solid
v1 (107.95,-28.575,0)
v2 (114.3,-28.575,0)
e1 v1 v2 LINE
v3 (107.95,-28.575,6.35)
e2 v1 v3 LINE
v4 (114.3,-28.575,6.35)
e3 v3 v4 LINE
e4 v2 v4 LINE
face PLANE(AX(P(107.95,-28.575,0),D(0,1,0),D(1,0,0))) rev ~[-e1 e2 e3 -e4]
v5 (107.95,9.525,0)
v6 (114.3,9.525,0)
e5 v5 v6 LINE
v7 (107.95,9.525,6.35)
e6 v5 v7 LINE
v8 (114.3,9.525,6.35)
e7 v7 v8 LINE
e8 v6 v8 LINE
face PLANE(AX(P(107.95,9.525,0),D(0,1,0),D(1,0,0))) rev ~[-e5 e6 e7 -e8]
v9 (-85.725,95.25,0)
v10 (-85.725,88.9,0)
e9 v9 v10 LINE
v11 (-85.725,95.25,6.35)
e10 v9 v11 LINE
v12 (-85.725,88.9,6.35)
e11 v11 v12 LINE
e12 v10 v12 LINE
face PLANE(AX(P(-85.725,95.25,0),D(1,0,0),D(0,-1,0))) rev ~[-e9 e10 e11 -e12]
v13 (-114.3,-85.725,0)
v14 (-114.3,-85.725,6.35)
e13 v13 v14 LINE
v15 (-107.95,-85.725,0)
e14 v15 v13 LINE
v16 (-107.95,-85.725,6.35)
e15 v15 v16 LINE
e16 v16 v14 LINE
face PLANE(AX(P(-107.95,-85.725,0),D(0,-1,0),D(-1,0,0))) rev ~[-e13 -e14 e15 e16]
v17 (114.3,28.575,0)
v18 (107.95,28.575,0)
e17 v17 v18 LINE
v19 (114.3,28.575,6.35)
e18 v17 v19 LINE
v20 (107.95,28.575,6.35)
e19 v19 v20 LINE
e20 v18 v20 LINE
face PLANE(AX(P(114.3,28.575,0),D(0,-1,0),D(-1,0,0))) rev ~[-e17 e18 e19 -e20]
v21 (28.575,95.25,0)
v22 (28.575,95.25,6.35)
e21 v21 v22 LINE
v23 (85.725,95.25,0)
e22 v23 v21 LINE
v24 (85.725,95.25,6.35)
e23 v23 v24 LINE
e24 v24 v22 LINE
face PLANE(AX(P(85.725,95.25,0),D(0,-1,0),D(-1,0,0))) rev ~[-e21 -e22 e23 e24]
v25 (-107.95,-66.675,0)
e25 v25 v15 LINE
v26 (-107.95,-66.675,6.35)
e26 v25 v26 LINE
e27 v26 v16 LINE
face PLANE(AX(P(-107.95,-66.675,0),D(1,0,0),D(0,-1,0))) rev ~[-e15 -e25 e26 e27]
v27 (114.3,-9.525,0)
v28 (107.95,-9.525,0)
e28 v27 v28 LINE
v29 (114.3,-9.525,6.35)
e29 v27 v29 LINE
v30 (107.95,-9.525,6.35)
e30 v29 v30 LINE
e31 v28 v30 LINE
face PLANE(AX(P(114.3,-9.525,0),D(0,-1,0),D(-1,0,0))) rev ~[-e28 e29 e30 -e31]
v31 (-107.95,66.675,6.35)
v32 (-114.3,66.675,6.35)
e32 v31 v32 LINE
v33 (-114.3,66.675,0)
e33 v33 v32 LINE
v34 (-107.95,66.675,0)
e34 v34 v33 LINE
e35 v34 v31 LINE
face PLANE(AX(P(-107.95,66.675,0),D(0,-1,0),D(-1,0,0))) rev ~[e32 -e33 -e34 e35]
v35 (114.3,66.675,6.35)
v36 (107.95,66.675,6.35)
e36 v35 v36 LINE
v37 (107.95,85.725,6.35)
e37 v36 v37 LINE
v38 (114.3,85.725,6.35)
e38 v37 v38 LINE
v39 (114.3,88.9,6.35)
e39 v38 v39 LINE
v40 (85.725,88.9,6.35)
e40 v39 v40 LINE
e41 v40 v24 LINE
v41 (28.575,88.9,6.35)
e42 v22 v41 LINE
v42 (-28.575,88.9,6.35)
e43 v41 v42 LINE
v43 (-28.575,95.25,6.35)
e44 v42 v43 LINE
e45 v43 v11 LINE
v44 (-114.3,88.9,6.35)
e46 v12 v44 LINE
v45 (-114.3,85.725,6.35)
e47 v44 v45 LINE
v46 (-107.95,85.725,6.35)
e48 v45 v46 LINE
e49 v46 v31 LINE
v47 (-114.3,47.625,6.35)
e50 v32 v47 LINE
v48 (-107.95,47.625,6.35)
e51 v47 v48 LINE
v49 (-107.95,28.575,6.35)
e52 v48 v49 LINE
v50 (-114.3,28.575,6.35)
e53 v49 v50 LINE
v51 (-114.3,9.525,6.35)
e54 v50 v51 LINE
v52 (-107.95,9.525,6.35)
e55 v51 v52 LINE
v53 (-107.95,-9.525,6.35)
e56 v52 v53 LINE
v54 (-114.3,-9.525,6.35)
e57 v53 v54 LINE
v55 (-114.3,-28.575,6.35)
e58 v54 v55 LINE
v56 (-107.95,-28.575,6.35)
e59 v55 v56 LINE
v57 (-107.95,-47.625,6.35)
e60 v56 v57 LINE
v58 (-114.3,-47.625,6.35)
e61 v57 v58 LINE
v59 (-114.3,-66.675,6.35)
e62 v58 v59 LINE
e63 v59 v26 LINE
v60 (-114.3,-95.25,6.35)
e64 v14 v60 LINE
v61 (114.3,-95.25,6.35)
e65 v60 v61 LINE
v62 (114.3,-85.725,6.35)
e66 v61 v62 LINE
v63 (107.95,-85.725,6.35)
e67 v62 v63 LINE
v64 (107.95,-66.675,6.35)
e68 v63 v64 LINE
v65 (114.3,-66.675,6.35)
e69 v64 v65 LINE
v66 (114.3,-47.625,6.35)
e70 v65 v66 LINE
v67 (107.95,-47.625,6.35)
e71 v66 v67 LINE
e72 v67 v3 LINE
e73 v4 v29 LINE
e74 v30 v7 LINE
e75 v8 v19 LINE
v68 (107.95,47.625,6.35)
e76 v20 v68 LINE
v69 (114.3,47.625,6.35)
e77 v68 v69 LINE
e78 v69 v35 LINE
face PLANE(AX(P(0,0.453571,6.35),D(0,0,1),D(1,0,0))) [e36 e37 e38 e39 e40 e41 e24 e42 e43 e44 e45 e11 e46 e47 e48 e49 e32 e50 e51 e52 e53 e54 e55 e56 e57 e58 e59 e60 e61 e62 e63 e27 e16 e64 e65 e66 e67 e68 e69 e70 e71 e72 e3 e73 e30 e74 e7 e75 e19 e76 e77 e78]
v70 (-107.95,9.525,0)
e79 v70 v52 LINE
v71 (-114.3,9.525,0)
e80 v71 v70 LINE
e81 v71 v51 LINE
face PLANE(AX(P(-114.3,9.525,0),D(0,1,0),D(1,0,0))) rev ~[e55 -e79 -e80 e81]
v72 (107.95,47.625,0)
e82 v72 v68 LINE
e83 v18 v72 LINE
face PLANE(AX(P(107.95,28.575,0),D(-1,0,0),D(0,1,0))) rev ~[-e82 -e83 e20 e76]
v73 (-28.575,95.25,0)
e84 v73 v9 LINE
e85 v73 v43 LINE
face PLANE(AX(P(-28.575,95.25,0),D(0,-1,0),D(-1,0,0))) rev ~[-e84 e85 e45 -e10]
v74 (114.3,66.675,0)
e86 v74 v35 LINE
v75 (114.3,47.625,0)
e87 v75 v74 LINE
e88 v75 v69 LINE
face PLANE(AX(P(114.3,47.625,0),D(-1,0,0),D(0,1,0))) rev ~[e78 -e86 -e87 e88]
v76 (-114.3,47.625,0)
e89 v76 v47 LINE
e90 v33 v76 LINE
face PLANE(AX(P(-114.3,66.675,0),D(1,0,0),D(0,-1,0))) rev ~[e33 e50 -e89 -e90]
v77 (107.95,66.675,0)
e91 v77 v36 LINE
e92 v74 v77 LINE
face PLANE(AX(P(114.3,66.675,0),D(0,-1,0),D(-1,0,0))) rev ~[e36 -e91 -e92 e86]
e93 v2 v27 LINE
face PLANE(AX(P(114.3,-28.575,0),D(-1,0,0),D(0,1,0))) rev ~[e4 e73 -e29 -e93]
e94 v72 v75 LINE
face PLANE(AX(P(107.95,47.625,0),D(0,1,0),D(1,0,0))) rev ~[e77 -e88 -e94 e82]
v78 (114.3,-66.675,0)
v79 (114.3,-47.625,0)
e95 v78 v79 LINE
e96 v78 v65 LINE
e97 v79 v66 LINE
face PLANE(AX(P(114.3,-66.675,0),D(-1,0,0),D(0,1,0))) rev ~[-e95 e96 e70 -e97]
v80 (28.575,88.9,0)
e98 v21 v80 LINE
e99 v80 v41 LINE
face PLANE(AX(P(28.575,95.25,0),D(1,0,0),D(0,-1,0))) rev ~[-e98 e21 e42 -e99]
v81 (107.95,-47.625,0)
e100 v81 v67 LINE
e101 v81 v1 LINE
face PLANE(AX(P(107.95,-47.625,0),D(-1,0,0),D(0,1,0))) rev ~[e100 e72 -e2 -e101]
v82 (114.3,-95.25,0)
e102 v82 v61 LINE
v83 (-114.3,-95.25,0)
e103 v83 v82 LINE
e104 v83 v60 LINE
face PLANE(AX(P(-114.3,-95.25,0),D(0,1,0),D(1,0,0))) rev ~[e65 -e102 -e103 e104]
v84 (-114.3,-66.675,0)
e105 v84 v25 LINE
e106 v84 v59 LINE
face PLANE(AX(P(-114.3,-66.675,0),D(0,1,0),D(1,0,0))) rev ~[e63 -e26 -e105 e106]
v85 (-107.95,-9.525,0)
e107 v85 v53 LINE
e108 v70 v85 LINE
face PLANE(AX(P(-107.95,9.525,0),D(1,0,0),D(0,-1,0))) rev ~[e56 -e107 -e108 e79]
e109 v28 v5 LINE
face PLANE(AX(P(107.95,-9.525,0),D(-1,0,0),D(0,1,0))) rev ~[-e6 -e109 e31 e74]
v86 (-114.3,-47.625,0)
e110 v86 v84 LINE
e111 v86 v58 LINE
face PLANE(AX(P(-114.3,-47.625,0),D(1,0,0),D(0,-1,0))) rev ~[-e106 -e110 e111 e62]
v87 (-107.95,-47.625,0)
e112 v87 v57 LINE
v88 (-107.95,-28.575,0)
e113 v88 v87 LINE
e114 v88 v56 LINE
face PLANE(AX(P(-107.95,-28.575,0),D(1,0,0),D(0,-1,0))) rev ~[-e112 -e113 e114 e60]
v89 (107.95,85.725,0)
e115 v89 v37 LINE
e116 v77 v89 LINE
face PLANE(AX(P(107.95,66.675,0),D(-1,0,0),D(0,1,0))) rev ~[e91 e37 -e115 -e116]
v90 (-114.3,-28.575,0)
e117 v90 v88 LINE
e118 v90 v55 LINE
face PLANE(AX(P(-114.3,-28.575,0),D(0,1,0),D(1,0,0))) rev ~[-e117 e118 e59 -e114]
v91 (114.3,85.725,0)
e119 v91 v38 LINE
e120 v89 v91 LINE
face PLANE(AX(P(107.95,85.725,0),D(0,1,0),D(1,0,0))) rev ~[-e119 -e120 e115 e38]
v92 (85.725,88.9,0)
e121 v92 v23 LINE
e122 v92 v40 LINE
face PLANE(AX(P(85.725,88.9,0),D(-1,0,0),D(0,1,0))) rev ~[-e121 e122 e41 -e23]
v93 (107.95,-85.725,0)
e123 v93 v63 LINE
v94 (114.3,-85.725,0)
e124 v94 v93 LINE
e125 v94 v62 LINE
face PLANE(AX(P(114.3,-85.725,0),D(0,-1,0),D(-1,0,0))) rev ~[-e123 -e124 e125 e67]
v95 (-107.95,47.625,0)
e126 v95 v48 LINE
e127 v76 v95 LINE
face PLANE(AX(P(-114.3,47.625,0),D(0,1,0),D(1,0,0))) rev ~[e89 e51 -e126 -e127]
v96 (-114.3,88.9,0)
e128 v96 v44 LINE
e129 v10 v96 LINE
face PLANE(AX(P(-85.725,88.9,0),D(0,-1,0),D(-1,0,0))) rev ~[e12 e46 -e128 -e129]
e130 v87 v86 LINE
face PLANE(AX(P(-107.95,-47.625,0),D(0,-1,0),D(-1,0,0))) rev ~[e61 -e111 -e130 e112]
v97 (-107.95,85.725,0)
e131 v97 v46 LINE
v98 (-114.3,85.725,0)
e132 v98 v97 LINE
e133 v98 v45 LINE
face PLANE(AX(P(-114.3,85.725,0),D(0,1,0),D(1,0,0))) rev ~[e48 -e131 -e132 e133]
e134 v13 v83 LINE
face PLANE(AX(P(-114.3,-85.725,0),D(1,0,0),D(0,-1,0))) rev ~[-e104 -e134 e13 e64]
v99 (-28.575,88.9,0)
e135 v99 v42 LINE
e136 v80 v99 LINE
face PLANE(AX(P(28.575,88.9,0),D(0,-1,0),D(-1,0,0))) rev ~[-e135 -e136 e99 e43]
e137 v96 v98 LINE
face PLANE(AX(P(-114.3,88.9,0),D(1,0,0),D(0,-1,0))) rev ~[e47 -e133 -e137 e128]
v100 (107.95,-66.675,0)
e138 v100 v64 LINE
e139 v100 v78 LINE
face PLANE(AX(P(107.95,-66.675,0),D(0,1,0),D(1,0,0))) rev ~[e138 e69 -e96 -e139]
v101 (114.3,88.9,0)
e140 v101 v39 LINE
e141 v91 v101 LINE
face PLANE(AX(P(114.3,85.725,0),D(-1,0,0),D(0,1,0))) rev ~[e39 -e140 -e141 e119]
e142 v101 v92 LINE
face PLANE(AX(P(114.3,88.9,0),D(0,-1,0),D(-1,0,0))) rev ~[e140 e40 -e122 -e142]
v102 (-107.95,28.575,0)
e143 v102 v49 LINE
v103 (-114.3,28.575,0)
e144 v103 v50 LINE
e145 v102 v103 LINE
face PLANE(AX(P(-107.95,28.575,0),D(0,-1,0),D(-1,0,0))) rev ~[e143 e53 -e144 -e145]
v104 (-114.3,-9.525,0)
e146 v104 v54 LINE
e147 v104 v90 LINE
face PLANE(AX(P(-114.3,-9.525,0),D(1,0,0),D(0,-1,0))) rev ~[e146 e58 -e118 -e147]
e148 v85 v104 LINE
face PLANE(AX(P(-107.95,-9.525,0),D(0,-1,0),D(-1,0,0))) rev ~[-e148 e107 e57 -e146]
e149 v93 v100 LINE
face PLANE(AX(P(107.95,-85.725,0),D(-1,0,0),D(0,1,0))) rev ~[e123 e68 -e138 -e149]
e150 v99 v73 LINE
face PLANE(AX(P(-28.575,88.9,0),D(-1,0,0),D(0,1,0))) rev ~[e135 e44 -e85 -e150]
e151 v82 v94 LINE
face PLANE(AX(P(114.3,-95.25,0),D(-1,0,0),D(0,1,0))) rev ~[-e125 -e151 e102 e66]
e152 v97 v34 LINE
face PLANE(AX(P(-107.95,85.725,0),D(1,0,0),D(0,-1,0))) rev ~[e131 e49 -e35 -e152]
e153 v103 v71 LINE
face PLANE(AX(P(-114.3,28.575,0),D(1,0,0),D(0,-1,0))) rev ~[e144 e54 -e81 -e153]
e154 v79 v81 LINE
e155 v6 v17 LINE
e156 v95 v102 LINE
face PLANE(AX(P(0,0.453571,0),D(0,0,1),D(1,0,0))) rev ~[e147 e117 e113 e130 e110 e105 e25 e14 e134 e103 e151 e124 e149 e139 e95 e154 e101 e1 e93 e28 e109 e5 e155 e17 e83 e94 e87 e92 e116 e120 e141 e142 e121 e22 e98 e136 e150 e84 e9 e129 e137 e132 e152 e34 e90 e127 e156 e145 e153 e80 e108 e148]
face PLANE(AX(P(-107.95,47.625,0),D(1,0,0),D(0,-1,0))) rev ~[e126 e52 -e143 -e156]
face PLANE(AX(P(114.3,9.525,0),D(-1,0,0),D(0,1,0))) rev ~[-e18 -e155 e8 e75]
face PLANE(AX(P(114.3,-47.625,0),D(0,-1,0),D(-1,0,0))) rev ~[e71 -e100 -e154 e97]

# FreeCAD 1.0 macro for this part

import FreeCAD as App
import Part
import Sketcher

V = App.Vector
Q = App.Units.Quantity

doc = App.newDocument("Part")
params = doc.addObject("Spreadsheet::Sheet", "Params")
for row, (alias, value) in enumerate([
    ("sketch1_width", "9 in"),
    ("sketch1_width2", "2.25 in"),
    ("sketch1_width3", "0.25 in"),
    ("sketch1_height", "0.75 in"),
    ("pad1_length", "0.25 in"),
], start=1):
    params.set(f"A{row}", alias)
    params.set(f"B{row}", "=" + value)
    params.setAlias(f"B{row}", alias)

body = doc.addObject("PartDesign::Body", "Body")

sketch1 = body.newObject("Sketcher::SketchObject", "Sketch")
sketch1.AttachmentSupport = (doc.getObject("XY_Plane"), [""])
sketch1.MapMode = "FlatFace"
sketch1.addGeometry([
    Part.LineSegment(V(85.7, 95.2, 0), V(28.6, 95.2, 0)),
    Part.LineSegment(V(28.6, 95.2, 0), V(28.6, 88.9, 0)),
    Part.LineSegment(V(28.6, 88.9, 0), V(-28.6, 88.9, 0)),
    Part.LineSegment(V(-28.6, 88.9, 0), V(-28.6, 95.2, 0)),
    Part.LineSegment(V(-28.6, 95.2, 0), V(-85.7, 95.2, 0)),
    Part.LineSegment(V(-85.7, 95.2, 0), V(-85.7, 88.9, 0)),
    Part.LineSegment(V(-85.7, 88.9, 0), V(-114.3, 88.9, 0)),
    Part.LineSegment(V(-114.3, 88.9, 0), V(-114.3, 85.7, 0)),
    Part.LineSegment(V(-114.3, 85.7, 0), V(-108, 85.7, 0)),
    Part.LineSegment(V(-108, 85.7, 0), V(-108, 66.7, 0)),
    Part.LineSegment(V(-108, 66.7, 0), V(-114.3, 66.7, 0)),
    Part.LineSegment(V(-114.3, 66.7, 0), V(-114.3, 47.6, 0)),
    Part.LineSegment(V(-114.3, 47.6, 0), V(-108, 47.6, 0)),
    Part.LineSegment(V(-108, 47.6, 0), V(-108, 28.6, 0)),
    Part.LineSegment(V(-108, 28.6, 0), V(-114.3, 28.6, 0)),
    Part.LineSegment(V(-114.3, 28.6, 0), V(-114.3, 9.5, 0)),
    Part.LineSegment(V(-114.3, 9.5, 0), V(-108, 9.5, 0)),
    Part.LineSegment(V(-108, 9.5, 0), V(-108, -9.5, 0)),
    Part.LineSegment(V(-108, -9.5, 0), V(-114.3, -9.5, 0)),
    Part.LineSegment(V(-114.3, -9.5, 0), V(-114.3, -28.6, 0)),
    Part.LineSegment(V(-114.3, -28.6, 0), V(-108, -28.6, 0)),
    Part.LineSegment(V(-108, -28.6, 0), V(-108, -47.6, 0)),
    Part.LineSegment(V(-108, -47.6, 0), V(-114.3, -47.6, 0)),
    Part.LineSegment(V(-114.3, -47.6, 0), V(-114.3, -66.7, 0)),
    Part.LineSegment(V(-114.3, -66.7, 0), V(-108, -66.7, 0)),
    Part.LineSegment(V(-108, -66.7, 0), V(-108, -85.7, 0)),
    Part.LineSegment(V(-108, -85.7, 0), V(-114.3, -85.7, 0)),
    Part.LineSegment(V(-114.3, -85.7, 0), V(-114.3, -95.2, 0)),
    Part.LineSegment(V(-114.3, -95.2, 0), V(114.3, -95.2, 0)),
    Part.LineSegment(V(114.3, -95.2, 0), V(114.3, -85.7, 0)),
    Part.LineSegment(V(114.3, -85.7, 0), V(108, -85.7, 0)),
    Part.LineSegment(V(108, -85.7, 0), V(108, -66.7, 0)),
    Part.LineSegment(V(108, -66.7, 0), V(114.3, -66.7, 0)),
    Part.LineSegment(V(114.3, -66.7, 0), V(114.3, -47.6, 0)),
    Part.LineSegment(V(114.3, -47.6, 0), V(108, -47.6, 0)),
    Part.LineSegment(V(108, -47.6, 0), V(108, -28.6, 0)),
    Part.LineSegment(V(108, -28.6, 0), V(114.3, -28.6, 0)),
    Part.LineSegment(V(114.3, -28.6, 0), V(114.3, -9.5, 0)),
    Part.LineSegment(V(114.3, -9.5, 0), V(108, -9.5, 0)),
    Part.LineSegment(V(108, -9.5, 0), V(108, 9.5, 0)),
    Part.LineSegment(V(108, 9.5, 0), V(114.3, 9.5, 0)),
    Part.LineSegment(V(114.3, 9.5, 0), V(114.3, 28.6, 0)),
    Part.LineSegment(V(114.3, 28.6, 0), V(108, 28.6, 0)),
    Part.LineSegment(V(108, 28.6, 0), V(108, 47.6, 0)),
    Part.LineSegment(V(108, 47.6, 0), V(114.3, 47.6, 0)),
    Part.LineSegment(V(114.3, 47.6, 0), V(114.3, 66.7, 0)),
    Part.LineSegment(V(114.3, 66.7, 0), V(108, 66.7, 0)),
    Part.LineSegment(V(108, 66.7, 0), V(108, 85.7, 0)),
    Part.LineSegment(V(108, 85.7, 0), V(114.3, 85.7, 0)),
    Part.LineSegment(V(114.3, 85.7, 0), V(114.3, 88.9, 0)),
    Part.LineSegment(V(114.3, 88.9, 0), V(85.7, 88.9, 0)),
    Part.LineSegment(V(85.7, 88.9, 0), V(85.7, 95.2, 0)),
], False)
sketch1.addConstraint([
    Sketcher.Constraint("Coincident", 0, 2, 1, 1),
    Sketcher.Constraint("Coincident", 1, 2, 2, 1),
    Sketcher.Constraint("Coincident", 2, 2, 3, 1),
    Sketcher.Constraint("Coincident", 3, 2, 4, 1),
    Sketcher.Constraint("Coincident", 4, 2, 5, 1),
    Sketcher.Constraint("Coincident", 5, 2, 6, 1),
    Sketcher.Constraint("Coincident", 6, 2, 7, 1),
    Sketcher.Constraint("Coincident", 7, 2, 8, 1),
    Sketcher.Constraint("Coincident", 8, 2, 9, 1),
    Sketcher.Constraint("Coincident", 9, 2, 10, 1),
    Sketcher.Constraint("Coincident", 10, 2, 11, 1),
    Sketcher.Constraint("Coincident", 11, 2, 12, 1),
    Sketcher.Constraint("Coincident", 12, 2, 13, 1),
    Sketcher.Constraint("Coincident", 13, 2, 14, 1),
    Sketcher.Constraint("Coincident", 14, 2, 15, 1),
    Sketcher.Constraint("Coincident", 15, 2, 16, 1),
    Sketcher.Constraint("Coincident", 16, 2, 17, 1),
    Sketcher.Constraint("Coincident", 17, 2, 18, 1),
    Sketcher.Constraint("Coincident", 18, 2, 19, 1),
    Sketcher.Constraint("Coincident", 19, 2, 20, 1),
    Sketcher.Constraint("Coincident", 20, 2, 21, 1),
    Sketcher.Constraint("Coincident", 21, 2, 22, 1),
    Sketcher.Constraint("Coincident", 22, 2, 23, 1),
    Sketcher.Constraint("Coincident", 23, 2, 24, 1),
    Sketcher.Constraint("Coincident", 24, 2, 25, 1),
    Sketcher.Constraint("Coincident", 25, 2, 26, 1),
    Sketcher.Constraint("Coincident", 26, 2, 27, 1),
    Sketcher.Constraint("Coincident", 27, 2, 28, 1),
    Sketcher.Constraint("Coincident", 28, 2, 29, 1),
    Sketcher.Constraint("Coincident", 29, 2, 30, 1),
    Sketcher.Constraint("Coincident", 30, 2, 31, 1),
    Sketcher.Constraint("Coincident", 31, 2, 32, 1),
    Sketcher.Constraint("Coincident", 32, 2, 33, 1),
    Sketcher.Constraint("Coincident", 33, 2, 34, 1),
    Sketcher.Constraint("Coincident", 34, 2, 35, 1),
    Sketcher.Constraint("Coincident", 35, 2, 36, 1),
    Sketcher.Constraint("Coincident", 36, 2, 37, 1),
    Sketcher.Constraint("Coincident", 37, 2, 38, 1),
    Sketcher.Constraint("Coincident", 38, 2, 39, 1),
    Sketcher.Constraint("Coincident", 39, 2, 40, 1),
    Sketcher.Constraint("Coincident", 40, 2, 41, 1),
    Sketcher.Constraint("Coincident", 41, 2, 42, 1),
    Sketcher.Constraint("Coincident", 42, 2, 43, 1),
    Sketcher.Constraint("Coincident", 43, 2, 44, 1),
    Sketcher.Constraint("Coincident", 44, 2, 45, 1),
    Sketcher.Constraint("Coincident", 45, 2, 46, 1),
    Sketcher.Constraint("Coincident", 46, 2, 47, 1),
    Sketcher.Constraint("Coincident", 47, 2, 48, 1),
    Sketcher.Constraint("Coincident", 48, 2, 49, 1),
    Sketcher.Constraint("Coincident", 49, 2, 50, 1),
    Sketcher.Constraint("Coincident", 50, 2, 51, 1),
    Sketcher.Constraint("Coincident", 51, 2, 0, 1),
    Sketcher.Constraint("Horizontal", 0),
    Sketcher.Constraint("Vertical", 1),
    Sketcher.Constraint("Horizontal", 2),
    Sketcher.Constraint("Vertical", 3),
    Sketcher.Constraint("Horizontal", 4),
    Sketcher.Constraint("Vertical", 5),
    Sketcher.Constraint("Horizontal", 6),
    Sketcher.Constraint("Vertical", 7),
    Sketcher.Constraint("Horizontal", 8),
    Sketcher.Constraint("Vertical", 9),
    Sketcher.Constraint("Horizontal", 10),
    Sketcher.Constraint("Vertical", 11),
    Sketcher.Constraint("Horizontal", 12),
    Sketcher.Constraint("Vertical", 13),
    Sketcher.Constraint("Horizontal", 14),
    Sketcher.Constraint("Vertical", 15),
    Sketcher.Constraint("Horizontal", 16),
    Sketcher.Constraint("Vertical", 17),
    Sketcher.Constraint("Horizontal", 18),
    Sketcher.Constraint("Vertical", 19),
    Sketcher.Constraint("Horizontal", 20),
    Sketcher.Constraint("Vertical", 21),
    Sketcher.Constraint("Horizontal", 22),
    Sketcher.Constraint("Vertical", 23),
    Sketcher.Constraint("Horizontal", 24),
    Sketcher.Constraint("Vertical", 25),
    Sketcher.Constraint("Horizontal", 26),
    Sketcher.Constraint("Vertical", 27),
    Sketcher.Constraint("Horizontal", 28),
    Sketcher.Constraint("Vertical", 29),
    Sketcher.Constraint("Horizontal", 30),
    Sketcher.Constraint("Vertical", 31),
    Sketcher.Constraint("Horizontal", 32),
    Sketcher.Constraint("Vertical", 33),
    Sketcher.Constraint("Horizontal", 34),
    Sketcher.Constraint("Vertical", 35),
    Sketcher.Constraint("Horizontal", 36),
    Sketcher.Constraint("Vertical", 37),
    Sketcher.Constraint("Horizontal", 38),
    Sketcher.Constraint("Vertical", 39),
    Sketcher.Constraint("Horizontal", 40),
    Sketcher.Constraint("Vertical", 41),
    Sketcher.Constraint("Horizontal", 42),
    Sketcher.Constraint("Vertical", 43),
    Sketcher.Constraint("Horizontal", 44),
    Sketcher.Constraint("Vertical", 45),
    Sketcher.Constraint("Horizontal", 46),
    Sketcher.Constraint("Vertical", 47),
    Sketcher.Constraint("Horizontal", 48),
    Sketcher.Constraint("Vertical", 49),
    Sketcher.Constraint("Horizontal", 50),
    Sketcher.Constraint("Vertical", 51),
    Sketcher.Constraint("Symmetric", 7, 2, 29, 2, -1, 1),
    Sketcher.Constraint("Symmetric", 9, 2, 31, 2, -1, 1),
    Sketcher.Constraint("Symmetric", 11, 2, 33, 2, -1, 1),
    Sketcher.Constraint("Symmetric", 13, 2, 35, 2, -1, 1),
    Sketcher.Constraint("Symmetric", 15, 2, 37, 2, -1, 1),
    Sketcher.Constraint("Symmetric", 17, 2, 39, 2, -1, 1),
    Sketcher.Constraint("Symmetric", 19, 2, 41, 2, -1, 1),
    Sketcher.Constraint("Symmetric", 21, 2, 43, 2, -1, 1),
    Sketcher.Constraint("Symmetric", 23, 2, 45, 2, -1, 1),
    Sketcher.Constraint("Symmetric", 25, 2, 47, 2, -1, 1),
    Sketcher.Constraint("Symmetric", 0, 2, 3, 2, -2),
    Sketcher.Constraint("Symmetric", 26, 2, 29, 2, -2),
    Sketcher.Constraint("Symmetric", 24, 2, 31, 2, -2),
    Sketcher.Constraint("Symmetric", 22, 2, 33, 2, -2),
    Sketcher.Constraint("Symmetric", 20, 2, 35, 2, -2),
    Sketcher.Constraint("Symmetric", 18, 2, 37, 2, -2),
    Sketcher.Constraint("Symmetric", 6, 2, 49, 2, -2),
    Sketcher.Constraint("Horizontal", 2, 2, 5, 2),
    Sketcher.Constraint("Vertical", 7, 2, 10, 2),
    Sketcher.Constraint("Vertical", 9, 2, 12, 2),
    Sketcher.Constraint("Vertical", 11, 2, 14, 2),
    Sketcher.Constraint("Vertical", 13, 2, 16, 2),
    Sketcher.Constraint("Equal", 0, 2),
    Sketcher.Constraint("Equal", 2, 4),
    Sketcher.Constraint("Equal", 48, 1),
    Sketcher.Constraint("Equal", 9, 11),
    Sketcher.Constraint("Equal", 11, 13),
    Sketcher.Constraint("Equal", 13, 15),
    Sketcher.Constraint("Equal", 15, 17),
    Sketcher.Constraint("DistanceX", 28, 1, 28, 2, Q("9 in")),
    Sketcher.Constraint("DistanceX", 0, 2, 0, 1, Q("2.25 in")),
    Sketcher.Constraint("DistanceX", 8, 1, 8, 2, Q("0.25 in")),
    Sketcher.Constraint("DistanceY", 9, 2, 9, 1, Q("0.75 in")),
    Sketcher.Constraint("DistanceY", -1, 1, 1, 2, Q("3.5 in")),
    Sketcher.Constraint("DistanceY", 28, 2, 0, 2, Q("7.5 in")),
])
sketch1.setExpression("Constraints[133]", "Params.sketch1_width")
sketch1.setExpression("Constraints[134]", "Params.sketch1_width2")
sketch1.setExpression("Constraints[135]", "Params.sketch1_width3")
sketch1.setExpression("Constraints[136]", "Params.sketch1_height")
pad1 = body.newObject("PartDesign::Pad", "Pad")
pad1.Profile = sketch1
pad1.setExpression("Length", "Params.pad1_length")

doc.recompute()
